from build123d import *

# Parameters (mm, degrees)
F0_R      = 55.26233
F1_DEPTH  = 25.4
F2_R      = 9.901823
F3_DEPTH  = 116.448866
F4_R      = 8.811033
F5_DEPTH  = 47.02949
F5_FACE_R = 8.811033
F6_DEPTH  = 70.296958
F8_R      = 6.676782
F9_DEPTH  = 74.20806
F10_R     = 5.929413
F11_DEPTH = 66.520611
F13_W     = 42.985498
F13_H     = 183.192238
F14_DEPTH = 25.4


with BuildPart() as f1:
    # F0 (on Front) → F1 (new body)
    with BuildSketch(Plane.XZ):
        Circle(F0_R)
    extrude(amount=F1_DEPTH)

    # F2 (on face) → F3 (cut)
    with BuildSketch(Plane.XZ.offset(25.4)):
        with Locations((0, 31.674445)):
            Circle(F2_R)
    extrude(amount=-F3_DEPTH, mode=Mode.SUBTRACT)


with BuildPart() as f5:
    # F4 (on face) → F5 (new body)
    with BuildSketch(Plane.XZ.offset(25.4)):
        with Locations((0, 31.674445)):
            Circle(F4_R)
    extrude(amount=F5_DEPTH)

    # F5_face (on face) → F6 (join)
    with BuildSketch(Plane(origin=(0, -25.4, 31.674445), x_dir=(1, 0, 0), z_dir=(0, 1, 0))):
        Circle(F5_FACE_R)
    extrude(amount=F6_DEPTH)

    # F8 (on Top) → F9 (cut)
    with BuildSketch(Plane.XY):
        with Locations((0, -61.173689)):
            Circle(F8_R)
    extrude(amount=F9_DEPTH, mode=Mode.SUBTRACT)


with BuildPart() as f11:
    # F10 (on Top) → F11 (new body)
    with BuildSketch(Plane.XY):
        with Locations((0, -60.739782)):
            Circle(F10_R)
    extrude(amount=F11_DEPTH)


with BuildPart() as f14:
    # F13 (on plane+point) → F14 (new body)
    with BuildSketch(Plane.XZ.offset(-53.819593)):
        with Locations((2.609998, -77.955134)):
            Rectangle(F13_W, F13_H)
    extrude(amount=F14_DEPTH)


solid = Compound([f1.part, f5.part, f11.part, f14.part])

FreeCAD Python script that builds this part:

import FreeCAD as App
import Part
import Sketcher
Q = App.Units.Quantity

doc = App.newDocument("Part")
params = doc.addObject("Spreadsheet::Sheet", "Params")
for row, (alias, value) in enumerate([
    ("pad1_length", "1 in"),
    ("pocket1_length", "116.448866 mm"),
    ("pad2_length", "47.02949 mm"),
    ("pad3_length", "70.296958 mm"),
    ("pocket2_length", "74.20806 mm"),
    ("pad4_length", "66.520611 mm"),
    ("pad5_length", "1 in"),
], start=1):
    params.set(f"A{row}", alias)
    params.set(f"B{row}", "=" + value)
    params.setAlias(f"B{row}", alias)

body = doc.addObject("PartDesign::Body", "Body")

# Sketch on XZ plane
sketch1 = body.newObject("Sketcher::SketchObject", "Sketch")
sketch1.AttachmentSupport = (doc.getObject("XZ_Plane"), [""])
sketch1.MapMode = "FlatFace"
sketch1.addGeometry(Part.Circle(App.Vector(0, 0, 0), App.Vector(0, 0, 1), 55), False)
sketch1.addConstraint(Sketcher.Constraint("Coincident", 0, 3, -1, 1))
sketch1.addConstraint(Sketcher.Constraint("Diameter", 0, Q("110.52466 mm")))
pad1 = body.newObject("PartDesign::Pad", "Pad")
pad1.Profile = sketch1
pad1.setExpression("Length", "Params.pad1_length")

# Sketch on XZ plane
sketch2 = body.newObject("Sketcher::SketchObject", "Sketch001")
sketch2.AttachmentSupport = (doc.getObject("XZ_Plane"), [""])
sketch2.MapMode = "FlatFace"
sketch2.AttachmentOffset = App.Placement(App.Vector(0, 0, 1 * 25.4), App.Rotation())
sketch2.addGeometry(Part.Circle(App.Vector(0, 32, 0), App.Vector(0, 0, 1), 10), False)
sketch2.addConstraint(Sketcher.Constraint("PointOnObject", 0, 3, -2))
sketch2.addConstraint(Sketcher.Constraint("Diameter", 0, Q("19.803646 mm")))
sketch2.addConstraint(Sketcher.Constraint("DistanceY", -1, 1, 0, 3, Q("31.674445 mm")))
pocket1 = body.newObject("PartDesign::Pocket", "Pocket")
pocket1.Profile = sketch2
pocket1.setExpression("Length", "Params.pocket1_length")
body2 = doc.addObject("PartDesign::Body", "Body001")

# Sketch on XZ plane
sketch3 = body2.newObject("Sketcher::SketchObject", "Sketch002")
sketch3.AttachmentSupport = (doc.getObject("XZ_Plane001"), [""])
sketch3.MapMode = "FlatFace"
sketch3.AttachmentOffset = App.Placement(App.Vector(0, 0, 1 * 25.4), App.Rotation())
sketch3.addGeometry(Part.Circle(App.Vector(0, 32, 0), App.Vector(0, 0, 1), 9), False)
sketch3.addConstraint(Sketcher.Constraint("PointOnObject", 0, 3, -2))
sketch3.addConstraint(Sketcher.Constraint("Diameter", 0, Q("17.622066 mm")))
sketch3.addConstraint(Sketcher.Constraint("DistanceY", -1, 1, 0, 3, Q("31.674445 mm")))
pad2 = body2.newObject("PartDesign::Pad", "Pad001")
pad2.Profile = sketch3
pad2.setExpression("Length", "Params.pad2_length")

# Sketch on XZ plane
sketch4 = body2.newObject("Sketcher::SketchObject", "Sketch003")
sketch4.AttachmentSupport = (doc.getObject("XZ_Plane001"), [""])
sketch4.MapMode = "FlatFace"
sketch4.AttachmentOffset = App.Placement(App.Vector(0, 0, 1 * 25.4), App.Rotation())
sketch4.addGeometry(Part.Circle(App.Vector(0, 32, 0), App.Vector(0, 0, 1), 9), False)
sketch4.addConstraint(Sketcher.Constraint("PointOnObject", 0, 3, -2))
sketch4.addConstraint(Sketcher.Constraint("Diameter", 0, Q("17.622066 mm")))
sketch4.addConstraint(Sketcher.Constraint("DistanceY", -1, 1, 0, 3, Q("31.674445 mm")))
pad3 = body2.newObject("PartDesign::Pad", "Pad002")
pad3.Profile = sketch4
pad3.setExpression("Length", "Params.pad3_length")
pad3.Reversed = True

# Sketch on XY plane
sketch5 = body2.newObject("Sketcher::SketchObject", "Sketch004")
sketch5.AttachmentSupport = (doc.getObject("XY_Plane001"), [""])
sketch5.MapMode = "FlatFace"
sketch5.addGeometry(Part.Circle(App.Vector(0, -61, 0), App.Vector(0, 0, 1), 7), False)
sketch5.addConstraint(Sketcher.Constraint("PointOnObject", 0, 3, -2))
sketch5.addConstraint(Sketcher.Constraint("Diameter", 0, Q("13.353564 mm")))
sketch5.addConstraint(Sketcher.Constraint("DistanceY", 0, 3, -1, 1, Q("61.173689 mm")))
pocket2 = body2.newObject("PartDesign::Pocket", "Pocket001")
pocket2.Profile = sketch5
pocket2.setExpression("Length", "Params.pocket2_length")
pocket2.Reversed = True
body3 = doc.addObject("PartDesign::Body", "Body002")

# Sketch on XY plane
sketch6 = body3.newObject("Sketcher::SketchObject", "Sketch005")
sketch6.AttachmentSupport = (doc.getObject("XY_Plane002"), [""])
sketch6.MapMode = "FlatFace"
sketch6.addGeometry(Part.Circle(App.Vector(0, -61, 0), App.Vector(0, 0, 1), 6), False)
sketch6.addConstraint(Sketcher.Constraint("PointOnObject", 0, 3, -2))
sketch6.addConstraint(Sketcher.Constraint("Diameter", 0, Q("11.858826 mm")))
sketch6.addConstraint(Sketcher.Constraint("DistanceY", 0, 3, -1, 1, Q("60.739782 mm")))
pad4 = body3.newObject("PartDesign::Pad", "Pad003")
pad4.Profile = sketch6
pad4.setExpression("Length", "Params.pad4_length")
body4 = doc.addObject("PartDesign::Body", "Body003")

# Sketch on XZ plane
sketch7 = body4.newObject("Sketcher::SketchObject", "Sketch006")
sketch7.AttachmentSupport = (doc.getObject("XZ_Plane003"), [""])
sketch7.MapMode = "FlatFace"
sketch7.AttachmentOffset = App.Placement(App.Vector(0, 0, -53.819593), App.Rotation())
sketch7.addGeometry(Part.LineSegment(App.Vector(-19, 14, 0), App.Vector(-19, -170, 0)), False)
sketch7.addGeometry(Part.LineSegment(App.Vector(-19, -170, 0), App.Vector(24, -170, 0)), False)
sketch7.addGeometry(Part.LineSegment(App.Vector(24, -170, 0), App.Vector(24, 14, 0)), False)
sketch7.addGeometry(Part.LineSegment(App.Vector(24, 14, 0), App.Vector(-19, 14, 0)), False)
sketch7.addConstraint(Sketcher.Constraint("Coincident", 0, 2, 1, 1))
sketch7.addConstraint(Sketcher.Constraint("Coincident", 1, 2, 2, 1))
sketch7.addConstraint(Sketcher.Constraint("Coincident", 2, 2, 3, 1))
sketch7.addConstraint(Sketcher.Constraint("Coincident", 3, 2, 0, 1))
sketch7.addConstraint(Sketcher.Constraint("Vertical", 0))
sketch7.addConstraint(Sketcher.Constraint("Horizontal", 1))
sketch7.addConstraint(Sketcher.Constraint("Vertical", 2))
sketch7.addConstraint(Sketcher.Constraint("Horizontal", 3))
sketch7.addConstraint(Sketcher.Constraint("DistanceY", 0, 2, 0, 1, Q("183.192238 mm")))
sketch7.addConstraint(Sketcher.Constraint("DistanceX", 1, 1, 1, 2, Q("42.985498 mm")))
sketch7.addConstraint(Sketcher.Constraint("DistanceX", 0, 2, -1, 1, Q("18.882751 mm")))
sketch7.addConstraint(Sketcher.Constraint("DistanceY", 0, 2, -1, 1, Q("169.551253 mm")))
pad5 = body4.newObject("PartDesign::Pad", "Pad004")
pad5.Profile = sketch7
pad5.setExpression("Length", "Params.pad5_length")

doc.recompute()
